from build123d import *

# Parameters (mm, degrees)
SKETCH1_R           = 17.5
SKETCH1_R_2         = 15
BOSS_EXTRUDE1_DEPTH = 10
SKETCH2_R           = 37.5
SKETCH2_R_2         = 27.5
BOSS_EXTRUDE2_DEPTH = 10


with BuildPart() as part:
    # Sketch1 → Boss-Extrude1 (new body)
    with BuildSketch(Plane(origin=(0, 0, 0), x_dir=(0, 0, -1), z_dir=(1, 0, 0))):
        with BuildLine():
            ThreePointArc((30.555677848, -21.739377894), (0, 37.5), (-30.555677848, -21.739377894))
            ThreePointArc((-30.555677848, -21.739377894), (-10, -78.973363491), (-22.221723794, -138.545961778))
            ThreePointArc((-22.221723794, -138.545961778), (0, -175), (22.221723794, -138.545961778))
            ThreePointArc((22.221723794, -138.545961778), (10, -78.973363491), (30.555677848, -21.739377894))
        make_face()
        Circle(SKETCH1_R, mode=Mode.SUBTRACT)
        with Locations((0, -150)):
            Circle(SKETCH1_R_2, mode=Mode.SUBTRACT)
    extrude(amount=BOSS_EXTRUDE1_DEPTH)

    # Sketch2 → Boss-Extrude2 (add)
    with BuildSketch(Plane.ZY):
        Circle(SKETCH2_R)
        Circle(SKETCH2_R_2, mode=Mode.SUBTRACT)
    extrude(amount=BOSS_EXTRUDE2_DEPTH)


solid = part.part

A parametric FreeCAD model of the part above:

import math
import FreeCAD as App
import Part
import Sketcher
from FreeCAD import Vector

doc = App.newDocument("Part")
body = doc.addObject("PartDesign::Body", "Body")

# Sketch on YZ plane
sketch1 = body.newObject("Sketcher::SketchObject", "Sketch")
sketch1.AttachmentSupport = (doc.getObject("YZ_Plane"), [""])
sketch1.MapMode = "FlatFace"
sketch1.addGeometry(Part.ArcOfCircle(Part.Circle(Vector(0, 0, 0), Vector(0, 0, 1), 38), math.radians(-125), math.radians(125)), False)
sketch1.addGeometry(Part.ArcOfCircle(Part.Circle(Vector(-87, 122, 0), Vector(0, 0, 1), 113), math.radians(-117), math.radians(-55)), False)
sketch1.addGeometry(Part.ArcOfCircle(Part.Circle(Vector(-150, 0, 0), Vector(0, 0, 1), 25), math.radians(63), math.radians(297)), False)
sketch1.addGeometry(Part.ArcOfCircle(Part.Circle(Vector(-87, -122, 0), Vector(0, 0, 1), 113), math.radians(55), math.radians(117)), False)
sketch1.addGeometry(Part.Circle(Vector(-150, 0, 0), Vector(0, 0, 1), 15), False)
sketch1.addGeometry(Part.Circle(Vector(0, 0, 0), Vector(0, 0, 1), 18), False)
sketch1.addConstraint(Sketcher.Constraint("Tangent", 0, 2, 1, 2))
sketch1.addConstraint(Sketcher.Constraint("Tangent", 1, 1, 2, 1))
sketch1.addConstraint(Sketcher.Constraint("Tangent", 2, 2, 3, 2))
sketch1.addConstraint(Sketcher.Constraint("Tangent", 3, 1, 0, 1))
sketch1.addConstraint(Sketcher.Constraint("Coincident", 0, 3, -1, 1))
sketch1.addConstraint(Sketcher.Constraint("Coincident", 5, 3, -1, 1))
sketch1.addConstraint(Sketcher.Constraint("Coincident", 4, 3, 2, 3))
sketch1.addConstraint(Sketcher.Constraint("Equal", 1, 3))
sketch1.addConstraint(Sketcher.Constraint("PointOnObject", 2, 3, -1))
sketch1.addConstraint(Sketcher.Constraint("Diameter", 4, 30.0))
sketch1.addConstraint(Sketcher.Constraint("Diameter", 5, 35.0))
sketch1.addConstraint(Sketcher.Constraint("Radius", 2, 25.0))
sketch1.addConstraint(Sketcher.Constraint("Radius", 0, 37.5))
sketch1.addConstraint(Sketcher.Constraint("DistanceX", 2, 3, -1, 1, 150.0))
sketch1.addConstraint(Sketcher.Constraint("Radius", 1, 112.543626))
pad1 = body.newObject("PartDesign::Pad", "Pad")
pad1.Profile = sketch1
pad1.Length = 10

# Sketch on YZ plane
sketch2 = body.newObject("Sketcher::SketchObject", "Sketch001")
sketch2.AttachmentSupport = (doc.getObject("YZ_Plane"), [""])
sketch2.MapMode = "FlatFace"
sketch2.addGeometry(Part.Circle(Vector(0, 0, 0), Vector(0, 0, 1), 38), False)
sketch2.addGeometry(Part.Circle(Vector(0, 0, 0), Vector(0, 0, 1), 28), False)
sketch2.addConstraint(Sketcher.Constraint("Coincident", 0, 3, -1, 1))
sketch2.addConstraint(Sketcher.Constraint("Coincident", 1, 3, -1, 1))
sketch2.addConstraint(Sketcher.Constraint("Diameter", 0, 75.0))
sketch2.addConstraint(Sketcher.Constraint("Diameter", 1, 55.0))
pad2 = body.newObject("PartDesign::Pad", "Pad001")
pad2.Profile = sketch2
pad2.Length = 10
pad2.Reversed = True

doc.recompute()
